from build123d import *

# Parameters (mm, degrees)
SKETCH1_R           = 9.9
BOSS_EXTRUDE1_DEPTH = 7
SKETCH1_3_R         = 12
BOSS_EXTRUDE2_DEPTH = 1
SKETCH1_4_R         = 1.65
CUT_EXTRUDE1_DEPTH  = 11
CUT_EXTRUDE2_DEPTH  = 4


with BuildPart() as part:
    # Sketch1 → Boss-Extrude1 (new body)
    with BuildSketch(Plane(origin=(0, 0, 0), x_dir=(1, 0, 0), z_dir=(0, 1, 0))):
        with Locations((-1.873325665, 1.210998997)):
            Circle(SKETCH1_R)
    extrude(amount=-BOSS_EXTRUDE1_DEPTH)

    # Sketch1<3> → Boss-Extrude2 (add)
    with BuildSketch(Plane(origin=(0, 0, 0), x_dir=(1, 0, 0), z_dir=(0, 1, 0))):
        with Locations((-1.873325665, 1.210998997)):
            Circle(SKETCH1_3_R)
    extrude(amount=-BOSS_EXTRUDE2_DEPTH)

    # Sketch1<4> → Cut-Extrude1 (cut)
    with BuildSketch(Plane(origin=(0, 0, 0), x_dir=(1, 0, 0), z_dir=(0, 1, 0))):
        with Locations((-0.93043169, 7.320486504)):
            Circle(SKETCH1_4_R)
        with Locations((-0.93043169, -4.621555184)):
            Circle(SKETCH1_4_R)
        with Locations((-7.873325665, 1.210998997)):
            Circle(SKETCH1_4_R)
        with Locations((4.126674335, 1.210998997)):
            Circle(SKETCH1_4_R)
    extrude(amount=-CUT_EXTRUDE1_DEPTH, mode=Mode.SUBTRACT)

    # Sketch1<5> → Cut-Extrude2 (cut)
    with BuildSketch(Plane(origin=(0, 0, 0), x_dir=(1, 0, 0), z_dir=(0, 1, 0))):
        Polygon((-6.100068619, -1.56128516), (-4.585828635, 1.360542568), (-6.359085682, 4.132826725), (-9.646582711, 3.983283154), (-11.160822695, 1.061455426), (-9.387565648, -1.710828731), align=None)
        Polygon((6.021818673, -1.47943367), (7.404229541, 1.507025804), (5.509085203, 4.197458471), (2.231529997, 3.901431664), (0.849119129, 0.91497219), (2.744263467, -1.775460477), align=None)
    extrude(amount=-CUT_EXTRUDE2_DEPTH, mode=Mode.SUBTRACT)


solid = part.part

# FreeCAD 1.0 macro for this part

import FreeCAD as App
import Part
import Sketcher
from FreeCAD import Vector


def add_polygon(sketch, points):
    """Adds a closed chain of lines whose ends are joined by coincident constraints."""
    first, n = sketch.GeometryCount, len(points)
    for a, b in zip(points, points[1:] + points[:1]):
        sketch.addGeometry(Part.LineSegment(App.Vector(*a, 0), App.Vector(*b, 0)), False)
    for i in range(n):
        sketch.addConstraint(Sketcher.Constraint("Coincident", first + i, 2, first + (i + 1) % n, 1))

doc = App.newDocument("Part")
body = doc.addObject("PartDesign::Body", "Body")

# Sketch on XZ plane
sketch1 = body.newObject("Sketcher::SketchObject", "Sketch")
sketch1.AttachmentSupport = (doc.getObject("XZ_Plane"), [""])
sketch1.MapMode = "FlatFace"
sketch1.addGeometry(Part.Circle(Vector(-2, -1, 0), Vector(0, 0, 1), 10), False)
sketch1.addConstraint(Sketcher.Constraint("Diameter", 0, 19.8))
sketch1.addConstraint(Sketcher.Constraint("DistanceY", 0, 3, -1, 1, 1.210999))
sketch1.addConstraint(Sketcher.Constraint("DistanceX", 0, 3, -1, 1, 1.873326))
pad1 = body.newObject("PartDesign::Pad", "Pad")
pad1.Profile = sketch1
pad1.Length = 7

# Sketch on XZ plane
sketch2 = body.newObject("Sketcher::SketchObject", "Sketch001")
sketch2.AttachmentSupport = (doc.getObject("XZ_Plane"), [""])
sketch2.MapMode = "FlatFace"
sketch2.addGeometry(Part.Circle(Vector(-2, -1, 0), Vector(0, 0, 1), 12), False)
sketch2.addConstraint(Sketcher.Constraint("Diameter", 0, 24.0))
sketch2.addConstraint(Sketcher.Constraint("DistanceY", 0, 3, -1, 1, 1.210999))
sketch2.addConstraint(Sketcher.Constraint("DistanceX", 0, 3, -1, 1, 1.873326))
pad2 = body.newObject("PartDesign::Pad", "Pad001")
pad2.Profile = sketch2
pad2.Length = 1

# Sketch on XZ plane
sketch3 = body.newObject("Sketcher::SketchObject", "Sketch002")
sketch3.AttachmentSupport = (doc.getObject("XZ_Plane"), [""])
sketch3.MapMode = "FlatFace"
sketch3.addGeometry(Part.Circle(Vector(-0.9, -7.3, 0), Vector(0, 0, 1), 1.6), False)
sketch3.addGeometry(Part.Circle(Vector(-0.9, 4.6, 0), Vector(0, 0, 1), 1.6), False)
sketch3.addGeometry(Part.Circle(Vector(-7.9, -1.2, 0), Vector(0, 0, 1), 1.6), False)
sketch3.addGeometry(Part.Circle(Vector(4.1, -1.2, 0), Vector(0, 0, 1), 1.6), False)
sketch3.addConstraint(Sketcher.Constraint("Equal", 0, 1))
sketch3.addConstraint(Sketcher.Constraint("Equal", 1, 2))
sketch3.addConstraint(Sketcher.Constraint("Equal", 2, 3))
sketch3.addConstraint(Sketcher.Constraint("Horizontal", 2, 3, 3, 3))
sketch3.addConstraint(Sketcher.Constraint("Vertical", 0, 3, 1, 3))
sketch3.addConstraint(Sketcher.Constraint("Diameter", 0, 3.3))
sketch3.addConstraint(Sketcher.Constraint("DistanceX", 2, 3, 3, 3, 12.0))
sketch3.addConstraint(Sketcher.Constraint("DistanceY", 2, 3, -1, 1, 1.210999))
sketch3.addConstraint(Sketcher.Constraint("DistanceX", 0, 3, -1, 1, 0.930432))
sketch3.addConstraint(Sketcher.Constraint("DistanceY", 0, 3, 1, 3, 11.942042))
sketch3.addConstraint(Sketcher.Constraint("DistanceY", 0, 3, -1, 1, 7.320487))
sketch3.addConstraint(Sketcher.Constraint("DistanceX", 2, 3, -1, 1, 7.873326))
pocket1 = body.newObject("PartDesign::Pocket", "Pocket")
pocket1.Profile = sketch3
pocket1.Length = 11
pocket1.Reversed = True

# Sketch on XZ plane
sketch4 = body.newObject("Sketcher::SketchObject", "Sketch003")
sketch4.AttachmentSupport = (doc.getObject("XZ_Plane"), [""])
sketch4.MapMode = "FlatFace"
add_polygon(sketch4, [(-6.1, 1.6), (-4.6, -1.4), (-6.4, -4.1), (-9.6, -4), (-11.2, -1.1), (-9.4, 1.7)])  # lines 0-5
add_polygon(sketch4, [(6, 1.5), (7.4, -1.5), (5.5, -4.2), (2.2, -3.9), (0.8, -0.9), (2.7, 1.8)])  # lines 6-11
sketch4.addConstraint(Sketcher.Constraint("Parallel", 0, 3))
sketch4.addConstraint(Sketcher.Constraint("Parallel", 1, 4))
sketch4.addConstraint(Sketcher.Constraint("Parallel", 2, 5))
sketch4.addConstraint(Sketcher.Constraint("Parallel", 6, 9))
sketch4.addConstraint(Sketcher.Constraint("Parallel", 7, 10))
sketch4.addConstraint(Sketcher.Constraint("Parallel", 8, 11))
sketch4.addConstraint(Sketcher.Constraint("Equal", 0, 1))
sketch4.addConstraint(Sketcher.Constraint("Equal", 1, 2))
sketch4.addConstraint(Sketcher.Constraint("Equal", 2, 3))
sketch4.addConstraint(Sketcher.Constraint("Equal", 5, 6))
sketch4.addConstraint(Sketcher.Constraint("Equal", 6, 7))
sketch4.addConstraint(Sketcher.Constraint("Equal", 7, 8))
sketch4.addConstraint(Sketcher.Constraint("Equal", 8, 9))
sketch4.addConstraint(Sketcher.Constraint("DistanceX", 5, 2, 6, 2, 13.504298))
sketch4.addConstraint(Sketcher.Constraint("DistanceY", 1, 2, 6, 2, 2.625801))
sketch4.addConstraint(Sketcher.Constraint("DistanceX", 8, 2, 6, 2, 5.1727))
sketch4.addConstraint(Sketcher.Constraint("DistanceX", 0, 2, -1, 1, 4.585829))
sketch4.addConstraint(Sketcher.Constraint("DistanceY", -1, 1, 4, 2, 1.710829))
sketch4.addConstraint(Sketcher.Constraint("DistanceX", 5, 2, -1, 1, 6.100069))
sketch4.addConstraint(Sketcher.Constraint("DistanceY", 7, 2, -1, 1, 4.197458))
sketch4.addConstraint(Sketcher.Constraint("DistanceY", 8, 2, -1, 1, 3.901432))
sketch4.addConstraint(Sketcher.Constraint("DistanceX", -1, 1, 9, 2, 0.849119))
sketch4.addConstraint(Sketcher.Constraint("DistanceY", -1, 1, 10, 2, 1.77546))
sketch4.addConstraint(Sketcher.Constraint("DistanceY", 2, 2, 0, 2, 2.622741))
pocket2 = body.newObject("PartDesign::Pocket", "Pocket001")
pocket2.Profile = sketch4
pocket2.Length = 4
pocket2.Reversed = True

doc.recompute()
